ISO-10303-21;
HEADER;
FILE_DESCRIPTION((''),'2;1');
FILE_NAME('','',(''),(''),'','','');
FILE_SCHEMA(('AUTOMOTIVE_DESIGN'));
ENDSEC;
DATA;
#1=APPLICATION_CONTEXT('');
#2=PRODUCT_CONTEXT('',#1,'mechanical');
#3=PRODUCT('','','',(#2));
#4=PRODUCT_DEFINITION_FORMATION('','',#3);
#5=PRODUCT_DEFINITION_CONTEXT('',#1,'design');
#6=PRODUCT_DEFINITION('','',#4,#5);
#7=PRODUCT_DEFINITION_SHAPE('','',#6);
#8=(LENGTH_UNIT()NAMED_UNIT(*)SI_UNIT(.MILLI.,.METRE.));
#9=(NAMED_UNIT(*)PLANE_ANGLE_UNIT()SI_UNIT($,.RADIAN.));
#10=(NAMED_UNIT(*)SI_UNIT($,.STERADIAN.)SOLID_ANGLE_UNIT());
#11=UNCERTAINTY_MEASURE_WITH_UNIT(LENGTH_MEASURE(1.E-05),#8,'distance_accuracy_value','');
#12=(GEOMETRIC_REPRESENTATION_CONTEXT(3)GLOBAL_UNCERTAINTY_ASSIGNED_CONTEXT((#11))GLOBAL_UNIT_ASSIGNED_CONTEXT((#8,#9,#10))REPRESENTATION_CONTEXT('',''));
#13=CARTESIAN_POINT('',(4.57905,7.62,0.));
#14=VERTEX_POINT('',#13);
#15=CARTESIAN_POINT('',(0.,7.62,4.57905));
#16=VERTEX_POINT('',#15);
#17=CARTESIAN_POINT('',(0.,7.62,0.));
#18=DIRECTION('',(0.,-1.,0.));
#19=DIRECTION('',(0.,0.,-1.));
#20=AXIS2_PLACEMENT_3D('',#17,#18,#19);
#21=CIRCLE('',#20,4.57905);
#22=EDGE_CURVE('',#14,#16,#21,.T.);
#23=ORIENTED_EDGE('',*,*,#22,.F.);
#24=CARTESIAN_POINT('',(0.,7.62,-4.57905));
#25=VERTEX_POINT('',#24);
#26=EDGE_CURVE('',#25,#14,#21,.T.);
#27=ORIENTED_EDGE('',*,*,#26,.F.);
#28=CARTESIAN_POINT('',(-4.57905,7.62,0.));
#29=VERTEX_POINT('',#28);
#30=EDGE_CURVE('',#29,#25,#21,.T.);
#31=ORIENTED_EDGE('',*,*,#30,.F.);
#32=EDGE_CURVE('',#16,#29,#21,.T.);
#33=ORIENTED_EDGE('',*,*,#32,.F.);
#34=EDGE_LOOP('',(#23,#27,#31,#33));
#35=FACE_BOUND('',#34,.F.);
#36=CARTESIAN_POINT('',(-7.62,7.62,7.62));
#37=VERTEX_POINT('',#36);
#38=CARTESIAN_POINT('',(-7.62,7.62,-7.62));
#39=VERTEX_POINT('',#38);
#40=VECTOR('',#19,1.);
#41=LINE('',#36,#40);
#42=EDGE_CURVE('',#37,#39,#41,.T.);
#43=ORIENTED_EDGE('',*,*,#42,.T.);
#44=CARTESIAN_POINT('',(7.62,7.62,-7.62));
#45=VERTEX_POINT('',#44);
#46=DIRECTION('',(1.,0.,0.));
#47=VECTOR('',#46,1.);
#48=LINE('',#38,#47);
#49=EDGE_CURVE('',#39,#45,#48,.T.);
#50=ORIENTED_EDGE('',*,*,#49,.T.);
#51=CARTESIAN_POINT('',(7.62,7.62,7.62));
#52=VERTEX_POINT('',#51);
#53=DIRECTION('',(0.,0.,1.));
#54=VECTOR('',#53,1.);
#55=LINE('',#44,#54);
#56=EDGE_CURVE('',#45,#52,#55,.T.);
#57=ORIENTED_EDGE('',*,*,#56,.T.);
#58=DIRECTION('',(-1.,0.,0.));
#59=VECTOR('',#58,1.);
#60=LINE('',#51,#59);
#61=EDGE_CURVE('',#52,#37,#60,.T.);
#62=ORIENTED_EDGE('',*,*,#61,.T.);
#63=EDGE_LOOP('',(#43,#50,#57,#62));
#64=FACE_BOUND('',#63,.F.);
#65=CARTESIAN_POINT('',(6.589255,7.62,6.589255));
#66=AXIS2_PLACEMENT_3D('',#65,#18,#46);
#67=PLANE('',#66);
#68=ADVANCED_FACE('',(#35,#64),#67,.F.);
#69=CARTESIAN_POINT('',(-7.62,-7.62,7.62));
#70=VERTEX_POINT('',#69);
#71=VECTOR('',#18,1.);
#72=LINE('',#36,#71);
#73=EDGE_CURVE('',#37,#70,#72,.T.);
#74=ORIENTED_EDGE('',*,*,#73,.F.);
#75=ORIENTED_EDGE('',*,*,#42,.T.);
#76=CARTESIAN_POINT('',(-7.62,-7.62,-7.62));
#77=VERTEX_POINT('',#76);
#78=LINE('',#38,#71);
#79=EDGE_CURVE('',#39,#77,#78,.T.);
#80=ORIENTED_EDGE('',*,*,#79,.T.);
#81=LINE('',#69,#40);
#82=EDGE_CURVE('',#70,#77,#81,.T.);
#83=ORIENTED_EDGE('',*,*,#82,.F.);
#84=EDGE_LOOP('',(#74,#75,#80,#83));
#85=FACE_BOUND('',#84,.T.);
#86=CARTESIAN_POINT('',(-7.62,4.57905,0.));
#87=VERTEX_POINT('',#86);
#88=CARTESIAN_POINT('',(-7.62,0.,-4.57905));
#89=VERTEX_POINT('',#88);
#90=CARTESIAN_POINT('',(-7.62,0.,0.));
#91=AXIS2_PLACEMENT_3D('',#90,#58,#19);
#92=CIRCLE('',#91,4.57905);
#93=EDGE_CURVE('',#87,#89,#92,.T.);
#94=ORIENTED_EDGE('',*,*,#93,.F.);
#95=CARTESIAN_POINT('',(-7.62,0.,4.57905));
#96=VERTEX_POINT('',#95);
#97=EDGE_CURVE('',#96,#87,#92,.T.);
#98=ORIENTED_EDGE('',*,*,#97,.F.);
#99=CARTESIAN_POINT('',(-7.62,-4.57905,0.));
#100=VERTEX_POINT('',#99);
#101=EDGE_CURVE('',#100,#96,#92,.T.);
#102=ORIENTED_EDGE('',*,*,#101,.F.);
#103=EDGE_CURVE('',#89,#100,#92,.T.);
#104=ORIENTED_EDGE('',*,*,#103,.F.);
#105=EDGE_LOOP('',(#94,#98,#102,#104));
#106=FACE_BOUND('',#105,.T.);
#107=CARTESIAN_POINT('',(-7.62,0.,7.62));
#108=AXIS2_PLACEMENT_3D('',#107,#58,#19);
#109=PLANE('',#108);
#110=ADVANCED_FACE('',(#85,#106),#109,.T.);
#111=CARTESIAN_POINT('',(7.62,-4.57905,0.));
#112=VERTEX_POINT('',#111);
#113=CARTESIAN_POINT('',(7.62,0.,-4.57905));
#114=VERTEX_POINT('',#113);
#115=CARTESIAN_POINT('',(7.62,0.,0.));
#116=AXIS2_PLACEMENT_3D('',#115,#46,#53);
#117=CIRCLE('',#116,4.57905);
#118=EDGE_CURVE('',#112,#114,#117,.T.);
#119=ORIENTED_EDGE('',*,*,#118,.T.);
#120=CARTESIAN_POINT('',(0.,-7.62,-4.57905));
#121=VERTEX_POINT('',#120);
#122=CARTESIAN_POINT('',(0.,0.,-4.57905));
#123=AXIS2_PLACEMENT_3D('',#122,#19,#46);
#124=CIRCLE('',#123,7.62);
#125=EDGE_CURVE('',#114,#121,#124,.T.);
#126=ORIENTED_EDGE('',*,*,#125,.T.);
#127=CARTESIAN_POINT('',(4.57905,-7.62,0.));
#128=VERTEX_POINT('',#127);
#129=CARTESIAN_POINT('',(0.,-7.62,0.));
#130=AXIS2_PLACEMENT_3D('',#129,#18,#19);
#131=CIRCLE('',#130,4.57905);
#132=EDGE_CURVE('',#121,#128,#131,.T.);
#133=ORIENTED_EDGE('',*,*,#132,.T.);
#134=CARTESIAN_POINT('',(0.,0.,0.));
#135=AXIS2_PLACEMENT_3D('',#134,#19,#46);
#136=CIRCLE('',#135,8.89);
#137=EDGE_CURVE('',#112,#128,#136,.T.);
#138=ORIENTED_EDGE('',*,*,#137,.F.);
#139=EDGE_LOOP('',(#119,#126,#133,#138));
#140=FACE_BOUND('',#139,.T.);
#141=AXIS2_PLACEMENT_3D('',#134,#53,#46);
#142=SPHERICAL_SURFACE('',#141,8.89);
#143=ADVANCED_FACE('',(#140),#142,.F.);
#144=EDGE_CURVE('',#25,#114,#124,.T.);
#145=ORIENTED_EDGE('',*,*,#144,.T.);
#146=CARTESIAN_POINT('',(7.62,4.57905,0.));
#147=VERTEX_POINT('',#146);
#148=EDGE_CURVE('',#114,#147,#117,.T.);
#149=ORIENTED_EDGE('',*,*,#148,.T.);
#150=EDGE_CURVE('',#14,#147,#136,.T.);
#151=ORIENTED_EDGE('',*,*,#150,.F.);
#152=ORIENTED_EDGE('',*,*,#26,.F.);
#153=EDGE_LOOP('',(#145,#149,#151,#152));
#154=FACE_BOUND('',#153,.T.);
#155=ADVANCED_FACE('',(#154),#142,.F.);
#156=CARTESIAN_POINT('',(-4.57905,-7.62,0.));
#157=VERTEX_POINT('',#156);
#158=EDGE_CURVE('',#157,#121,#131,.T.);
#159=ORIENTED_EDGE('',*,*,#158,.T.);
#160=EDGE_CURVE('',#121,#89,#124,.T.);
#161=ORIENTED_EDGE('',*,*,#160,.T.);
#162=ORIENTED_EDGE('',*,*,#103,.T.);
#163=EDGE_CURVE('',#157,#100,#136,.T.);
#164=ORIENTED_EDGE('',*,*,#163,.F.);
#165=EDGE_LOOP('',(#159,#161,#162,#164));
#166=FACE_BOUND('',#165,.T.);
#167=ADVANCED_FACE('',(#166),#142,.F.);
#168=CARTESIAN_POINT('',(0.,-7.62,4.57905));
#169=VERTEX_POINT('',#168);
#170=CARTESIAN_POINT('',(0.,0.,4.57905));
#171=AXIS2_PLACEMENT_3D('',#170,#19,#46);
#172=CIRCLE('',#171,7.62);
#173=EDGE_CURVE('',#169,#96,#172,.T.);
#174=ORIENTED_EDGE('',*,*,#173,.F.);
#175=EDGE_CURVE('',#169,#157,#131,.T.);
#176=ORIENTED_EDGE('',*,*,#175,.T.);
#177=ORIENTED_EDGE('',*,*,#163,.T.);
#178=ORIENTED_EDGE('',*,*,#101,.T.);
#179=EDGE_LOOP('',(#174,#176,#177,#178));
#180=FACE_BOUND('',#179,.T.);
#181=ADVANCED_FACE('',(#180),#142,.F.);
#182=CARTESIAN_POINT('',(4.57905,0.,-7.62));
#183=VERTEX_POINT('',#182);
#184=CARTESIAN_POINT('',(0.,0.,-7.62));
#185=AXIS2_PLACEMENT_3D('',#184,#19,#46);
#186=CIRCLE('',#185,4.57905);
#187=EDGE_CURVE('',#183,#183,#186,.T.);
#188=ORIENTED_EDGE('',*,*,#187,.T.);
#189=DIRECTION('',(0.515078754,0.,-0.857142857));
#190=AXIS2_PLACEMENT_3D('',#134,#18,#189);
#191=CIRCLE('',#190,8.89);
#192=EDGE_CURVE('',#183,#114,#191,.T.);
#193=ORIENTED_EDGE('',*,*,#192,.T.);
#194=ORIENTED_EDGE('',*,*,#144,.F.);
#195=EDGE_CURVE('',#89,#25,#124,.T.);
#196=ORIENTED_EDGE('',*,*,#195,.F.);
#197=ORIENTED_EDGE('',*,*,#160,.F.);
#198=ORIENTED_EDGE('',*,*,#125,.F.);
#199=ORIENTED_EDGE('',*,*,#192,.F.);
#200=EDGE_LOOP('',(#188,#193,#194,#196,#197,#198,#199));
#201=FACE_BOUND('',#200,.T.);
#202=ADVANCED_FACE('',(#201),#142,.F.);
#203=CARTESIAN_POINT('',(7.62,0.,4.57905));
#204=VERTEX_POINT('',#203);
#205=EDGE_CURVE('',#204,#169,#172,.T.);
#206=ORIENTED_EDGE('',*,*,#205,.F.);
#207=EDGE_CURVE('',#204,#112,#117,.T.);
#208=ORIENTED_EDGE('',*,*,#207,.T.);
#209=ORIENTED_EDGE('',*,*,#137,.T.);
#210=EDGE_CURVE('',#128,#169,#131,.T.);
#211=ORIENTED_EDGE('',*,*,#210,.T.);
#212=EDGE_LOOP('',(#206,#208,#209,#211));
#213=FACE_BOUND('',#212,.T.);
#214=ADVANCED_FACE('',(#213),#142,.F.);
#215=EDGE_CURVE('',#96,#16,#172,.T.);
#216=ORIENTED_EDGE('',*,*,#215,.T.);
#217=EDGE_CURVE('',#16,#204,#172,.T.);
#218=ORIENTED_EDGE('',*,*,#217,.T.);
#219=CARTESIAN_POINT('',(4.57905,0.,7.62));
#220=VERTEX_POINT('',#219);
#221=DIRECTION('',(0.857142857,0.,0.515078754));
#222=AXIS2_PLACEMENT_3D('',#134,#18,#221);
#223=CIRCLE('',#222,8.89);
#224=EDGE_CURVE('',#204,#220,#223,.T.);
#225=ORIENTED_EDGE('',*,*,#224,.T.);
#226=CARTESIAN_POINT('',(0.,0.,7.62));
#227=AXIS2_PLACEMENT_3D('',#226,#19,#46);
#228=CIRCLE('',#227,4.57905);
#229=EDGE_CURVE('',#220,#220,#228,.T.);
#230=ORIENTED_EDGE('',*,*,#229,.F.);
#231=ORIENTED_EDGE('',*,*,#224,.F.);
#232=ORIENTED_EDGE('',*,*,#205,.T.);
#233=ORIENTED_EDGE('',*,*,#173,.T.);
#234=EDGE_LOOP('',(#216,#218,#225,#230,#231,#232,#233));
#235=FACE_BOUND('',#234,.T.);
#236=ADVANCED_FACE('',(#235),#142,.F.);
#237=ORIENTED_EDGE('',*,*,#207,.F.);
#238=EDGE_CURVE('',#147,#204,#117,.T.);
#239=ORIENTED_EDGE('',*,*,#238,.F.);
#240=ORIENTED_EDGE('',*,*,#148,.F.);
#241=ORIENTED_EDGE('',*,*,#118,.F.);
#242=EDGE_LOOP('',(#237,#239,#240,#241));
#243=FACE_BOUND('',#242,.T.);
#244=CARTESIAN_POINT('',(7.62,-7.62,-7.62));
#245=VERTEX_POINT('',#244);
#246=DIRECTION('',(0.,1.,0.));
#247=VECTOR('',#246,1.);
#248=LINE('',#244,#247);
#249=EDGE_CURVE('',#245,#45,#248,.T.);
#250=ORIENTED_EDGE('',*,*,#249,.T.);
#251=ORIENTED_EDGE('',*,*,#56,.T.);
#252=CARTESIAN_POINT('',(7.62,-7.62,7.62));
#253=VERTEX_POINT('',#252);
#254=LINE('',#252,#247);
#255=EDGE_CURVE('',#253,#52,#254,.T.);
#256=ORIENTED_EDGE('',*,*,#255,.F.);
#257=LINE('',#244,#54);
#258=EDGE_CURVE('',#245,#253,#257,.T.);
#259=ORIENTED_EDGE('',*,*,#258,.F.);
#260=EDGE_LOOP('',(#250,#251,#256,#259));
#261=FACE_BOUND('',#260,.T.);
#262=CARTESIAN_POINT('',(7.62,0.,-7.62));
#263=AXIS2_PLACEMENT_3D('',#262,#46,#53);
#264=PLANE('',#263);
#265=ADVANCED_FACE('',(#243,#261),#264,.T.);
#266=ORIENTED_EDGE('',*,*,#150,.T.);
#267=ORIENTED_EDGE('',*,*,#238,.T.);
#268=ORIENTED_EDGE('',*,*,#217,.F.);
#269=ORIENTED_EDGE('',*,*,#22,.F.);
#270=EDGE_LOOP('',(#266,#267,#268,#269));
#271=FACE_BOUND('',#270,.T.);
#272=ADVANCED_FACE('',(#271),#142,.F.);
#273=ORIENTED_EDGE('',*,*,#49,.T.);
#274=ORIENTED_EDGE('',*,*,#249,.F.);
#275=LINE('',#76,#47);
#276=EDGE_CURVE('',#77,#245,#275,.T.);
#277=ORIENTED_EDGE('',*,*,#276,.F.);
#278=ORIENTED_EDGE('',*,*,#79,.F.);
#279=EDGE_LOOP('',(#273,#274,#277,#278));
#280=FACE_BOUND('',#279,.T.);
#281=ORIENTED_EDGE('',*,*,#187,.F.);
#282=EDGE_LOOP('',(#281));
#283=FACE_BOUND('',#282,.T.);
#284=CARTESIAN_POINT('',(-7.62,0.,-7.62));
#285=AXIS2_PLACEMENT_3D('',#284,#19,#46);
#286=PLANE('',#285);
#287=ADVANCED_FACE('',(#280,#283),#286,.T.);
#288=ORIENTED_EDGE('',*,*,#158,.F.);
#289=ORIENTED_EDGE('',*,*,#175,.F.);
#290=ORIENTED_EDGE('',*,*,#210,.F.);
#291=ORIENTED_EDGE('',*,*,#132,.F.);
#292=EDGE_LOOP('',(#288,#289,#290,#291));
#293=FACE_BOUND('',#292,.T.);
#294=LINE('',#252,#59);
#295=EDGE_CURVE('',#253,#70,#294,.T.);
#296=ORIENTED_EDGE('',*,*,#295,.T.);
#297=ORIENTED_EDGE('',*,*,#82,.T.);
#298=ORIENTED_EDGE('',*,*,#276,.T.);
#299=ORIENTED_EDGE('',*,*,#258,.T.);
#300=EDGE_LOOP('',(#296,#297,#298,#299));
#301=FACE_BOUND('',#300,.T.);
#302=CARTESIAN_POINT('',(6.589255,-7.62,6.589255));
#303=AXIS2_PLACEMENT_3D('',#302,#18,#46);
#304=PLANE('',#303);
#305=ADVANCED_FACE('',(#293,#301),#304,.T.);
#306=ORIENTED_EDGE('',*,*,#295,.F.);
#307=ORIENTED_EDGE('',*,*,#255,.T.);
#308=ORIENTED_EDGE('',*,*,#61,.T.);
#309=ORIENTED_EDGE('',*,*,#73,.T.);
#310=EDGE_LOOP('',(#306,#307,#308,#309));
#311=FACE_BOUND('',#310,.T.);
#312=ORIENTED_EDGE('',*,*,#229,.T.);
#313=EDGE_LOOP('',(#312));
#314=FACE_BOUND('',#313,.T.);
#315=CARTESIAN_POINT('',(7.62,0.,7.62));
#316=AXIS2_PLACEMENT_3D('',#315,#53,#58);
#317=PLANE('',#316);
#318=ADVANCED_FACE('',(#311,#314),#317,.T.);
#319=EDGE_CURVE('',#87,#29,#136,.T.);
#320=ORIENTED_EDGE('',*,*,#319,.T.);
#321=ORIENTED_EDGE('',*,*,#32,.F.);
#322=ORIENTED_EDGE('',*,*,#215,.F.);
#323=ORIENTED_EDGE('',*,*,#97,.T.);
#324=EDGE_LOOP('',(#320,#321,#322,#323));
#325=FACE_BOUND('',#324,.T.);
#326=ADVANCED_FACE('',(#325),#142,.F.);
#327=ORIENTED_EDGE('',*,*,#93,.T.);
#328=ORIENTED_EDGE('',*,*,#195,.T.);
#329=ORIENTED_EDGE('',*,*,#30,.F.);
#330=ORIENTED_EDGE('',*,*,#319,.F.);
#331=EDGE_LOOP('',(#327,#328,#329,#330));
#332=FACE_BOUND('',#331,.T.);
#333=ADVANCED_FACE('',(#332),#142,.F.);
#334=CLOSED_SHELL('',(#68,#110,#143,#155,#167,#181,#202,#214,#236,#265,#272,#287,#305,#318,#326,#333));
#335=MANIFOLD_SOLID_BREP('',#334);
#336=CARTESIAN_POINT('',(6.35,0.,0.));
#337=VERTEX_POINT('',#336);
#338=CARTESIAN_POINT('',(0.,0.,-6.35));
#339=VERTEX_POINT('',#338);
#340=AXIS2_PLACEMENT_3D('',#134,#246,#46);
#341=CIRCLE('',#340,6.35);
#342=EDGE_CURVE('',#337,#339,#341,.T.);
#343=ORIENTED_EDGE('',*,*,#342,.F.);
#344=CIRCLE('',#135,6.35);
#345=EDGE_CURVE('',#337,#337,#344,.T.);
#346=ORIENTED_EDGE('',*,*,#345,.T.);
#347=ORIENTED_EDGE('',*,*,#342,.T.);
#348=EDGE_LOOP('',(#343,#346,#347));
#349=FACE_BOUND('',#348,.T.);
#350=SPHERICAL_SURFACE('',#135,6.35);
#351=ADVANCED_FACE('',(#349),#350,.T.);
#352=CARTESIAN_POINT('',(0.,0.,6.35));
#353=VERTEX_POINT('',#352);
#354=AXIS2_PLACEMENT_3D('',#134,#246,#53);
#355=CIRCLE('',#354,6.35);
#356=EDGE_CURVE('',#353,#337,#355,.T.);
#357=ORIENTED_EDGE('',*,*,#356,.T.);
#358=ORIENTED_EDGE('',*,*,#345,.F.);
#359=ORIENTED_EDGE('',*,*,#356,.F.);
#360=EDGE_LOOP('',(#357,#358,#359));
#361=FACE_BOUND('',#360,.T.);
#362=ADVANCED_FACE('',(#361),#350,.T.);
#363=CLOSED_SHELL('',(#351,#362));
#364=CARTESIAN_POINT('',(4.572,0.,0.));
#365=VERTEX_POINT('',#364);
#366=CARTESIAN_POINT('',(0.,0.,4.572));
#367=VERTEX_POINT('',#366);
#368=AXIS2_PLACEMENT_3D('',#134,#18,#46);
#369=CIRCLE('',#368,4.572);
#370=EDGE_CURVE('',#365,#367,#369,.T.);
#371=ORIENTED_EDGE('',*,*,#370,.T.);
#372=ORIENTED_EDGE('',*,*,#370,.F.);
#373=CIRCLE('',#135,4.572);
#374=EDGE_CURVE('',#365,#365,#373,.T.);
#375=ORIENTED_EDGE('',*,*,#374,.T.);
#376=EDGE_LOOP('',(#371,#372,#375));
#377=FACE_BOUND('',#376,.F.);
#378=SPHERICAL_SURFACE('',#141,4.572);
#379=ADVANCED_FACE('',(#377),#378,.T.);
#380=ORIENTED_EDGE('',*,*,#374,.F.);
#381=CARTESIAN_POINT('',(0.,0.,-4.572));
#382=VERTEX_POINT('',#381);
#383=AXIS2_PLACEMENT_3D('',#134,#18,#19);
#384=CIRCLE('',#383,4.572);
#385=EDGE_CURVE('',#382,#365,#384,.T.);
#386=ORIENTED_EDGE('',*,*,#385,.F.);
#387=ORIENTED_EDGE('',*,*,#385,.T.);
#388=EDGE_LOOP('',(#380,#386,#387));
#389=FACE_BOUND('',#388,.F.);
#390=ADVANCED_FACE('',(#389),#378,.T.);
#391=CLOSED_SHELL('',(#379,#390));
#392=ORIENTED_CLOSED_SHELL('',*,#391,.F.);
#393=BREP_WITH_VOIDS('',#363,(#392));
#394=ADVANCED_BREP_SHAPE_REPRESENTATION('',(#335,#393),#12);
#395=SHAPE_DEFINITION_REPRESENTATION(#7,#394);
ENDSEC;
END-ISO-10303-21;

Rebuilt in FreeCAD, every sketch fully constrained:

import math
import FreeCAD as App
import Part
import Sketcher
from FreeCAD import Vector
Q = App.Units.Quantity


def add_polygon(sketch, points):
    """Adds a closed chain of lines whose ends are joined by coincident constraints."""
    first, n = sketch.GeometryCount, len(points)
    for a, b in zip(points, points[1:] + points[:1]):
        sketch.addGeometry(Part.LineSegment(App.Vector(*a, 0), App.Vector(*b, 0)), False)
    for i in range(n):
        sketch.addConstraint(Sketcher.Constraint("Coincident", first + i, 2, first + (i + 1) % n, 1))

doc = App.newDocument("Part")
body = doc.addObject("PartDesign::Body", "Body")
body.AllowCompound = True

# Sketch on XZ plane
sketch1 = body.newObject("Sketcher::SketchObject", "Sketch")
sketch1.AttachmentSupport = (doc.getObject("XZ_Plane"), [""])
sketch1.MapMode = "FlatFace"
add_polygon(sketch1, [(7.62, 7.62), (-7.62, 7.62), (-7.62, -7.62), (7.62, -7.62)])  # lines 0-3
sketch1.addConstraint([
    Sketcher.Constraint("Horizontal", 0),
    Sketcher.Constraint("Vertical", 1),
    Sketcher.Constraint("Horizontal", 2),
    Sketcher.Constraint("Vertical", 3),
    Sketcher.Constraint("Symmetric", 0, 2, 2, 2, -1, 1),
    Sketcher.Constraint("Equal", 2, 1),
    Sketcher.Constraint("DistanceX", 0, 2, 0, 1, Q("0.6 in")),
])
pad1 = body.newObject("PartDesign::Pad", "Pad")
pad1.Profile = sketch1
pad1.Length = Q("0.6 in")
pad1.Midplane = True

# Sketch on XZ plane
sketch2 = body.newObject("Sketcher::SketchObject", "Sketch001")
sketch2.AttachmentSupport = (doc.getObject("XZ_Plane"), [""])
sketch2.MapMode = "FlatFace"
sketch2.addGeometry([
    Part.ArcOfCircle(Part.Circle(Vector(0, 0, 0), Vector(0, 0, 1), 8.89), math.radians(-90), math.radians(-58.997281)),  # 0
    Part.ArcOfCircle(Part.Circle(Vector(0, 0, 0), Vector(0, 0, 1), 8.89), math.radians(-58.997281), math.radians(-31.002719)),  # 1
    Part.ArcOfCircle(Part.Circle(Vector(0, 0, 0), Vector(0, 0, 1), 8.89), math.radians(-31.002719), math.radians(0)),  # 2
    Part.ArcOfCircle(Part.Circle(Vector(0, 0, 0), Vector(0, 0, 1), 8.89), math.radians(0), math.radians(31.002719)),  # 3
    Part.ArcOfCircle(Part.Circle(Vector(0, 0, 0), Vector(0, 0, 1), 8.89), math.radians(31.002719), math.radians(58.997281)),  # 4
    Part.ArcOfCircle(Part.Circle(Vector(0, 0, 0), Vector(0, 0, 1), 8.89), math.radians(58.997281), math.radians(90)),  # 5
    Part.LineSegment(Vector(0, 8.89, 0), Vector(0, 6.35, 0)),  # 6
    Part.ArcOfCircle(Part.Circle(Vector(0, 0, 0), Vector(0, 0, 1), 6.35), math.radians(0), math.radians(90)),  # 7
    Part.ArcOfCircle(Part.Circle(Vector(0, 0, 0), Vector(0, 0, 1), 6.35), math.radians(-90), math.radians(0)),  # 8
    Part.LineSegment(Vector(0, -6.35, 0), Vector(0, -8.89, 0)),  # 9
    Part.LineSegment(Vector(0, 4.572, 0), Vector(0, -4.572, 0)),  # 10
    Part.ArcOfCircle(Part.Circle(Vector(0, 0, 0), Vector(0, 0, 1), 4.572), math.radians(-90), math.radians(0)),  # 11
    Part.ArcOfCircle(Part.Circle(Vector(0, 0, 0), Vector(0, 0, 1), 4.572), math.radians(0), math.radians(90)),  # 12
], False)
sketch2.addConstraint([
    Sketcher.Constraint("Tangent", 0, 2, 1, 1),
    Sketcher.Constraint("Tangent", 1, 2, 2, 1),
    Sketcher.Constraint("Tangent", 2, 2, 3, 1),
    Sketcher.Constraint("Tangent", 3, 2, 4, 1),
    Sketcher.Constraint("Tangent", 4, 2, 5, 1),
    Sketcher.Constraint("Coincident", 5, 2, 6, 1),
    Sketcher.Constraint("Coincident", 6, 2, 7, 2),
    Sketcher.Constraint("Tangent", 7, 1, 8, 2),
    Sketcher.Constraint("Coincident", 8, 1, 9, 1),
    Sketcher.Constraint("Coincident", 9, 2, 0, 1),
    Sketcher.Constraint("Coincident", 10, 2, 11, 1),
    Sketcher.Constraint("Tangent", 11, 2, 12, 1),
    Sketcher.Constraint("Coincident", 12, 2, 10, 1),
    Sketcher.Constraint("Vertical", 6),
    Sketcher.Constraint("Vertical", 9),
    Sketcher.Constraint("Vertical", 10),
    Sketcher.Constraint("Coincident", 0, 3, -1, 1),
    Sketcher.Constraint("Coincident", 2, 3, -1, 1),
    Sketcher.Constraint("Coincident", 4, 3, -1, 1),
    Sketcher.Constraint("Coincident", 7, 3, -1, 1),
    Sketcher.Constraint("Coincident", 11, 3, -1, 1),
    Sketcher.Constraint("Equal", 4, 5),
    Sketcher.Constraint("Equal", 7, 8),
    Sketcher.Constraint("Equal", 11, 12),
    Sketcher.Constraint("PointOnObject", 2, 2, -1),
    Sketcher.Constraint("PointOnObject", 5, 2, -2),
    Sketcher.Constraint("PointOnObject", 7, 1, -1),
    Sketcher.Constraint("PointOnObject", 8, 1, -2),
    Sketcher.Constraint("PointOnObject", 10, 2, -2),
    Sketcher.Constraint("PointOnObject", 11, 2, -1),
    Sketcher.Constraint("Vertical", 1, 2, 3, 2),
    Sketcher.Constraint("Vertical", 0, 2, 4, 2),
    Sketcher.Constraint("Radius", 0, Q("0.35 in")),
    Sketcher.Constraint("Radius", 7, Q("0.25 in")),
    Sketcher.Constraint("Radius", 11, Q("0.18 in")),
    Sketcher.Constraint("DistanceY", 0, 2, -1, 1, Q("0.3 in")),
    Sketcher.Constraint("DistanceX", -1, 1, 1, 2, Q("0.3 in")),
])
groove = body.newObject("PartDesign::Groove", "Groove")
groove.Profile = sketch2
groove.ReferenceAxis = (sketch2, ["V_Axis"])
groove.Angle = 360

doc.recompute()
